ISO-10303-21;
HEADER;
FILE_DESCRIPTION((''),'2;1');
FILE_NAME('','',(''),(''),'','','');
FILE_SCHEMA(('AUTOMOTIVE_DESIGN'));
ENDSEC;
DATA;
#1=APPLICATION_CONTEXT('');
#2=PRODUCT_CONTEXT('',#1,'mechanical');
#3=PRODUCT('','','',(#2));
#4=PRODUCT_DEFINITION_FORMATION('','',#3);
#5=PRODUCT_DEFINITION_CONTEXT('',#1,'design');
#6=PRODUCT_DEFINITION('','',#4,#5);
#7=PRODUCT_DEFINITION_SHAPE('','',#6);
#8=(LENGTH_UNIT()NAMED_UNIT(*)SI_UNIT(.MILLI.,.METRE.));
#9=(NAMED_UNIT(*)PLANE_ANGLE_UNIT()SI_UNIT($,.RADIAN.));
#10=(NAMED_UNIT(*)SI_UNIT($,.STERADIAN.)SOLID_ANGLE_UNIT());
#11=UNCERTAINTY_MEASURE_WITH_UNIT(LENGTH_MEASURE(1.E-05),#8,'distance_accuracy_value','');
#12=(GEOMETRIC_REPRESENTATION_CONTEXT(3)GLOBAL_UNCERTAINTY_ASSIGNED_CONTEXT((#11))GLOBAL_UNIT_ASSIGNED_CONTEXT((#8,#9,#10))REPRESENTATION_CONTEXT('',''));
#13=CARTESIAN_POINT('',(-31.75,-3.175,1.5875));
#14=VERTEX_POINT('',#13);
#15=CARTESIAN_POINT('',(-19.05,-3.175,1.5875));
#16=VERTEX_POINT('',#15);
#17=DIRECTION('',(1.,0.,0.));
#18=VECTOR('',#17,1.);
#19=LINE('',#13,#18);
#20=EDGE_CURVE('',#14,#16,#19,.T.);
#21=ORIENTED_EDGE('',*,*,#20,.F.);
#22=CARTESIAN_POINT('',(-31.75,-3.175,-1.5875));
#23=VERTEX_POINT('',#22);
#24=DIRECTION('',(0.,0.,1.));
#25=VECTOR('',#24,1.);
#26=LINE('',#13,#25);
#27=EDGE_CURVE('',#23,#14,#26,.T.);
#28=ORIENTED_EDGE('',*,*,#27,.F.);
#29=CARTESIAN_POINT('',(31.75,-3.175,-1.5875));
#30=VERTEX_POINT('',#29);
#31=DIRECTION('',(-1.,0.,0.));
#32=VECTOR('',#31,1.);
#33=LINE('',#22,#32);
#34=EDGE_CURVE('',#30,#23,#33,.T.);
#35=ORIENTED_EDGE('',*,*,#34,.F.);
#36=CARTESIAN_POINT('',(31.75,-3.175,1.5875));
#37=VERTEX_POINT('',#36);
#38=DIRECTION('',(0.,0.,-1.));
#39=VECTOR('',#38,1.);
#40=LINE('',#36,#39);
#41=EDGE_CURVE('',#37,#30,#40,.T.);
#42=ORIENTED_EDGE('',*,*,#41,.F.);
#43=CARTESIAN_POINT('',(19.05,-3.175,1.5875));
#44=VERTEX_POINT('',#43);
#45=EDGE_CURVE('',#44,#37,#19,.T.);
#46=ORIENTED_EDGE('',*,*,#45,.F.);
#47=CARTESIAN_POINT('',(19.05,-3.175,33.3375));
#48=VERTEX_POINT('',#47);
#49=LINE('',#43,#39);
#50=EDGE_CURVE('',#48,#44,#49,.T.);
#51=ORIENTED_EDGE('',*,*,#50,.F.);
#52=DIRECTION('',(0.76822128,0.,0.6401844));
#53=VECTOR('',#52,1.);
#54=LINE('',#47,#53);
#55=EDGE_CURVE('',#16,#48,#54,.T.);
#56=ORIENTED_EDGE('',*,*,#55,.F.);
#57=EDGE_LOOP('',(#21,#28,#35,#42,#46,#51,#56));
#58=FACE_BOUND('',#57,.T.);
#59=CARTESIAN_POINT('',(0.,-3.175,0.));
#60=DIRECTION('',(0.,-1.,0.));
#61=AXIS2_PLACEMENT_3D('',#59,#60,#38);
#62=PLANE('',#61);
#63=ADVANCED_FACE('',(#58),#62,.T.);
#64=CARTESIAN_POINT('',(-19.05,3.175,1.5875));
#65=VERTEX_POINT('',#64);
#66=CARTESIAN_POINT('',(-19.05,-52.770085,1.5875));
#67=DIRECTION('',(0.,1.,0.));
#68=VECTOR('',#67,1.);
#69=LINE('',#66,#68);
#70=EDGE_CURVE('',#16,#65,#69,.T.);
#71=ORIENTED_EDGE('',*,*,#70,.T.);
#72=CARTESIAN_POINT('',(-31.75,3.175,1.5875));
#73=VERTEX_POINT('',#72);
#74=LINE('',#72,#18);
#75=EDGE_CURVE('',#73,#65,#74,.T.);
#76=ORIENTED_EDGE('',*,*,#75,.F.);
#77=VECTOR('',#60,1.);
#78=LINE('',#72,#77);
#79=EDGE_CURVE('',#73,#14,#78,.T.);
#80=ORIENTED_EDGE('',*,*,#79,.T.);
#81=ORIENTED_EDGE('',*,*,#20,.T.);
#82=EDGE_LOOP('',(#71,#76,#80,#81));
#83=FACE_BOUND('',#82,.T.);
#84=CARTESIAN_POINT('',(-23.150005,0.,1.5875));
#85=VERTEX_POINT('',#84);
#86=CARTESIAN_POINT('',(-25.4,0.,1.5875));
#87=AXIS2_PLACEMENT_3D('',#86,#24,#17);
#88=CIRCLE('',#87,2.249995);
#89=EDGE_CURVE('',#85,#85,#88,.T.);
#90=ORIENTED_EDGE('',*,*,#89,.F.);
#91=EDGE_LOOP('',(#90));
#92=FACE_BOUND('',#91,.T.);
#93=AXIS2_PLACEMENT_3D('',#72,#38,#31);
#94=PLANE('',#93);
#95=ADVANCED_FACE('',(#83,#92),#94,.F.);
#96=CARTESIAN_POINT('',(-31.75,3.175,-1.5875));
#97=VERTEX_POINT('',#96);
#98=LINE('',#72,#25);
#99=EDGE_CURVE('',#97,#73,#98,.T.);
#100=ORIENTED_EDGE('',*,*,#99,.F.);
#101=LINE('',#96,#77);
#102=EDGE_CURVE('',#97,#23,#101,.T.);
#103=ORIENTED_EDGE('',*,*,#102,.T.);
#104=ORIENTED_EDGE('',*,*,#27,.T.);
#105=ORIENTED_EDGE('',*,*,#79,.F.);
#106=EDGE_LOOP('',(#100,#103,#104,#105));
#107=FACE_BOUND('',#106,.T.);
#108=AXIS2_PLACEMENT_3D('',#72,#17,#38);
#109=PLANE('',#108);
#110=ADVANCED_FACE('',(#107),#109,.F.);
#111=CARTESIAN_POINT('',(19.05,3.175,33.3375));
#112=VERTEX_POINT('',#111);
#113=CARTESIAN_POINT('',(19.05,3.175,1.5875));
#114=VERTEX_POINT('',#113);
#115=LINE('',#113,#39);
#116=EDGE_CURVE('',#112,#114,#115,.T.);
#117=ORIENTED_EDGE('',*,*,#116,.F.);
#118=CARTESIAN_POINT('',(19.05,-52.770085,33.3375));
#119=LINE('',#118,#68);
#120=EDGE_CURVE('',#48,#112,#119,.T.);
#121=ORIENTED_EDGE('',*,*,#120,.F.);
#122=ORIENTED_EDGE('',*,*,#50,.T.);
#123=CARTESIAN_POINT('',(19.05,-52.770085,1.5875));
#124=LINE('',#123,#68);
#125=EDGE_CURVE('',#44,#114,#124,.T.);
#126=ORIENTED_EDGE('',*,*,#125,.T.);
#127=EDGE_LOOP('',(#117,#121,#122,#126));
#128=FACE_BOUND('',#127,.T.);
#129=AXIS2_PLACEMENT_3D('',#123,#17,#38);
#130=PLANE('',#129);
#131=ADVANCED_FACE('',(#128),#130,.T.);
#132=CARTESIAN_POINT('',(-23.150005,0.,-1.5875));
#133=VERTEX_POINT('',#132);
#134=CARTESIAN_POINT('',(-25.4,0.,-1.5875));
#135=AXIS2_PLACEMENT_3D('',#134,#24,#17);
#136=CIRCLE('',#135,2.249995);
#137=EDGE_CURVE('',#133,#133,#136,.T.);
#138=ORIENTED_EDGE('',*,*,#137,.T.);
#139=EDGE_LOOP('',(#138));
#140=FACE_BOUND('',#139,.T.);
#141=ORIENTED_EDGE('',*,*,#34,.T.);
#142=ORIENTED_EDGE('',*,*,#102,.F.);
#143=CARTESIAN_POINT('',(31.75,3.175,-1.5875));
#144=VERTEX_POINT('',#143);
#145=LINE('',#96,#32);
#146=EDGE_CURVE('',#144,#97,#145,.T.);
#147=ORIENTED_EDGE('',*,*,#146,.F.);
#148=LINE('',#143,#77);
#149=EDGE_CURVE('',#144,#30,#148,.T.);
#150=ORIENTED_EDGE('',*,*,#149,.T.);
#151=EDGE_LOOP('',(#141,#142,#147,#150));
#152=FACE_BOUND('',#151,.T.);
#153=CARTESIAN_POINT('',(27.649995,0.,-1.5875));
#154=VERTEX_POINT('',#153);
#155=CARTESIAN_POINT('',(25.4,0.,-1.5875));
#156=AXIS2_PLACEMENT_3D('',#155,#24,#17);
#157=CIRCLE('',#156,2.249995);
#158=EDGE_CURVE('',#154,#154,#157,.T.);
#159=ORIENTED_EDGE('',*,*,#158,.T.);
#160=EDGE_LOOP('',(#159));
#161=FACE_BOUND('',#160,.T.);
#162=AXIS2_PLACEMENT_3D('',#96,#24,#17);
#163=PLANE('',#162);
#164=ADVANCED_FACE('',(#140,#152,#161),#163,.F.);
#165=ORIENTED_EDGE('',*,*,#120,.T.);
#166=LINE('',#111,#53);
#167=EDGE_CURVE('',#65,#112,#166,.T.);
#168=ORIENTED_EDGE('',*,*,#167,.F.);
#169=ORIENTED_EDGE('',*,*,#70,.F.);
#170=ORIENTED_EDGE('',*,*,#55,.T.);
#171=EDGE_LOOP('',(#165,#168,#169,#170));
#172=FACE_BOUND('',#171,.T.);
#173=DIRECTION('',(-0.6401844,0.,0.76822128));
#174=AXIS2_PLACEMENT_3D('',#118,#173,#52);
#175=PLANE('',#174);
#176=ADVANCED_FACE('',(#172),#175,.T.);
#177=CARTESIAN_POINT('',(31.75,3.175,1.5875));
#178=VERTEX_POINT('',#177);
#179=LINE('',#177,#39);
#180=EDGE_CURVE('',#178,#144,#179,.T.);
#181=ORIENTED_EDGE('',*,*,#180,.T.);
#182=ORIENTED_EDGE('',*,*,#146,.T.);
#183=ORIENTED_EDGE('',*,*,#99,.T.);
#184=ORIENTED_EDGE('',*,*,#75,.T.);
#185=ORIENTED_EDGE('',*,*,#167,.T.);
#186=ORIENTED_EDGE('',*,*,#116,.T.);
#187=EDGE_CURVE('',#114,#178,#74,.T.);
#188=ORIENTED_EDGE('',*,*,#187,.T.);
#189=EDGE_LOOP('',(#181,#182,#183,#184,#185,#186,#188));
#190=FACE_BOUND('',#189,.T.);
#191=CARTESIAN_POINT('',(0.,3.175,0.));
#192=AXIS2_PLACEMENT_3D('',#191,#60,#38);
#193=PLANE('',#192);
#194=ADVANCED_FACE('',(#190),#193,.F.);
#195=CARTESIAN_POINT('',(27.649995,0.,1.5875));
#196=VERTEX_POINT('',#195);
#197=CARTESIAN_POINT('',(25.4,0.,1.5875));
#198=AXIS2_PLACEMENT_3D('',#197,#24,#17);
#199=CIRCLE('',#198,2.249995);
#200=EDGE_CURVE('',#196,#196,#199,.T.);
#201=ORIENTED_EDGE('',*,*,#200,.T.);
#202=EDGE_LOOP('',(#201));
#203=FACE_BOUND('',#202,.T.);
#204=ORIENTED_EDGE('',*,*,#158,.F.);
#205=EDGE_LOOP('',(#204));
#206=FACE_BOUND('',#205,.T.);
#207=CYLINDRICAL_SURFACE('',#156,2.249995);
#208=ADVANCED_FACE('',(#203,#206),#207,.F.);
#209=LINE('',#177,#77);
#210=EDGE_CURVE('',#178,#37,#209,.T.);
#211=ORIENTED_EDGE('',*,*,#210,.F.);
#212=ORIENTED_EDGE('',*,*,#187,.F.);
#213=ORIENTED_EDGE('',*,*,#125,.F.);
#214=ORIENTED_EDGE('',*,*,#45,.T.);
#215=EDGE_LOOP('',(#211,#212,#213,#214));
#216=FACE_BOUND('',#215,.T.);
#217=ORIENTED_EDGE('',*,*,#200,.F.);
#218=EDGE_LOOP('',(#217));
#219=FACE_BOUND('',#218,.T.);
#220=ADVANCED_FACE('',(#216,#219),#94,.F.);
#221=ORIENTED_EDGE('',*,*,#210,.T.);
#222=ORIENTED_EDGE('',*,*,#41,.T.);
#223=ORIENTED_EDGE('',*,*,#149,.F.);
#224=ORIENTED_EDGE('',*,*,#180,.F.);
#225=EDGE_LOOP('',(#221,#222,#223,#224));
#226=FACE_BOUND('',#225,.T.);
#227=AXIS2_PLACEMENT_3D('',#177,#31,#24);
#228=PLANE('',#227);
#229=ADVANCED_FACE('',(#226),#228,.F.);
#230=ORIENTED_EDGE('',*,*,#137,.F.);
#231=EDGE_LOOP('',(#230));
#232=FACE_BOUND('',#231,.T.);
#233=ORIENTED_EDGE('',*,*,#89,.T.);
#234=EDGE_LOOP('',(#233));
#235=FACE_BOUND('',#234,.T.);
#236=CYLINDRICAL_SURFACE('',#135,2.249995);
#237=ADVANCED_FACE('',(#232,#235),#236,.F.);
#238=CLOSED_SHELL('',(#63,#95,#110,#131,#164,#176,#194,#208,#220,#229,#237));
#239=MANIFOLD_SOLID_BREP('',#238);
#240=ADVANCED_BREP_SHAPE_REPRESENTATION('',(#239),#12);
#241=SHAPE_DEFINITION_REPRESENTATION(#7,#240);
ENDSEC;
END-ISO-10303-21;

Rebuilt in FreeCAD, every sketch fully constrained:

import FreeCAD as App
import Part
import Sketcher

V = App.Vector
Q = App.Units.Quantity


def add_polygon(sketch, points):
    """Adds a closed chain of lines whose ends are joined by coincident constraints."""
    first, n = sketch.GeometryCount, len(points)
    for a, b in zip(points, points[1:] + points[:1]):
        sketch.addGeometry(Part.LineSegment(App.Vector(*a, 0), App.Vector(*b, 0)), False)
    for i in range(n):
        sketch.addConstraint(Sketcher.Constraint("Coincident", first + i, 2, first + (i + 1) % n, 1))

doc = App.newDocument("Part")
params = doc.addObject("Spreadsheet::Sheet", "Params")
for row, (alias, value) in enumerate([
    ("sketch1_width", "2.5 in"),
    ("sketch1_height", "0.125 in"),
    ("pad1_length", "0.25 in"),
    ("sketch3_width", "1.5 in"),
    ("sketch3_height", "1.25 in"),
    ("pad2_length", "0.25 in"),
], start=1):
    params.set(f"A{row}", alias)
    params.set(f"B{row}", "=" + value)
    params.setAlias(f"B{row}", alias)

body = doc.addObject("PartDesign::Body", "Body")

sketch1 = body.newObject("Sketcher::SketchObject", "Sketch")
sketch1.AttachmentSupport = (doc.getObject("XZ_Plane"), [""])
sketch1.MapMode = "FlatFace"
add_polygon(sketch1, [(-31.8, -1.6), (-31.8, 1.6), (31.8, 1.6), (31.8, -1.6)])
sketch1.addConstraint(Sketcher.Constraint("Vertical", 0))
sketch1.addConstraint(Sketcher.Constraint("Horizontal", 1))
sketch1.addConstraint(Sketcher.Constraint("Vertical", 2))
sketch1.addConstraint(Sketcher.Constraint("Horizontal", 3))
sketch1.addConstraint(Sketcher.Constraint("Symmetric", 0, 2, 2, 2, -1, 1))
sketch1.addConstraint(Sketcher.Constraint("DistanceX", 1, 1, 1, 2, Q("2.5 in")))
sketch1.addConstraint(Sketcher.Constraint("DistanceY", 0, 1, 0, 2, Q("0.125 in")))
sketch1.setExpression("Constraints[9]", "Params.sketch1_width")
sketch1.setExpression("Constraints[10]", "Params.sketch1_height")
pad1 = body.newObject("PartDesign::Pad", "Pad")
pad1.Profile = sketch1
pad1.setExpression("Length", "Params.pad1_length")
pad1.Midplane = True

sketch2 = body.newObject("Sketcher::SketchObject", "Sketch001")
sketch2.AttachmentSupport = (doc.getObject("XY_Plane"), [""])
sketch2.MapMode = "FlatFace"
sketch2.AttachmentOffset = App.Placement(V(0, 0, 0.0625 * 25.4), App.Rotation())
sketch2.addGeometry(Part.Circle(V(-25.4, 0, 0), V(0, 0, 1), 2.2), False)
sketch2.addGeometry(Part.Circle(V(25.4, 0, 0), V(0, 0, 1), 2.2), False)
sketch2.addConstraint(Sketcher.Constraint("Equal", 0, 1))
sketch2.addConstraint(Sketcher.Constraint("Symmetric", 0, 3, 1, 3, -1, 1))
sketch2.addConstraint(Sketcher.Constraint("PointOnObject", 0, 3, -1))
sketch2.addConstraint(Sketcher.Constraint("DistanceX", 0, 3, -1, 1, Q("1 in")))
sketch2.addConstraint(Sketcher.Constraint("Diameter", 0, Q("4.499991 mm")))
pocket1 = body.newObject("PartDesign::Pocket", "Pocket")
pocket1.Profile = sketch2
pocket1.Type = "ThroughAll"

sketch3 = body.newObject("Sketcher::SketchObject", "Sketch002")
sketch3.AttachmentSupport = (doc.getObject("XZ_Plane"), [""])
sketch3.MapMode = "FlatFace"
sketch3.AttachmentOffset = App.Placement(V(0, 0, -0.125 * 25.4), App.Rotation())
add_polygon(sketch3, [(19, 33), (19, 2), (-19, 2)])
sketch3.addConstraint(Sketcher.Constraint("Vertical", 0))
sketch3.addConstraint(Sketcher.Constraint("Horizontal", 1))
sketch3.addConstraint(Sketcher.Constraint("DistanceX", 1, 2, 1, 1, Q("1.5 in")))
sketch3.addConstraint(Sketcher.Constraint("DistanceY", 0, 2, 0, 1, Q("1.25 in")))
sketch3.addConstraint(Sketcher.Constraint("DistanceX", -1, 1, 0, 2, Q("0.75 in")))
sketch3.addConstraint(Sketcher.Constraint("DistanceY", -1, 1, 0, 2, Q("0.0625 in")))
sketch3.setExpression("Constraints[5]", "Params.sketch3_width")
sketch3.setExpression("Constraints[6]", "Params.sketch3_height")
pad2 = body.newObject("PartDesign::Pad", "Pad001")
pad2.Profile = sketch3
pad2.setExpression("Length", "Params.pad2_length")

doc.recompute()
